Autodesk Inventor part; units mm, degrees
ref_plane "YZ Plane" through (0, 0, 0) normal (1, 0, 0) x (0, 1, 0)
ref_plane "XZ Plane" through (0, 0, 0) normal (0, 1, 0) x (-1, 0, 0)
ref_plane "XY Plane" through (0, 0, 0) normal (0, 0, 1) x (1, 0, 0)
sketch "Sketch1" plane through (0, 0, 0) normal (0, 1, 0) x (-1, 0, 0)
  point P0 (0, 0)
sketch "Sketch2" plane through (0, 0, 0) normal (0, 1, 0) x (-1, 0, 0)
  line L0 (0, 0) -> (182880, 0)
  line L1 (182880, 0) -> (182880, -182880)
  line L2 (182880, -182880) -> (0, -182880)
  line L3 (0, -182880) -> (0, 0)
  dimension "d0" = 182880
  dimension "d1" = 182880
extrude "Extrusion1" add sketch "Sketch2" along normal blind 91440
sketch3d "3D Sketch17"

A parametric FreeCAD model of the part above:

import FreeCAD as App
import Part
import Sketcher
Q = App.Units.Quantity


def add_polygon(sketch, points):
    """Adds a closed chain of lines whose ends are joined by coincident constraints."""
    first, n = sketch.GeometryCount, len(points)
    for a, b in zip(points, points[1:] + points[:1]):
        sketch.addGeometry(Part.LineSegment(App.Vector(*a, 0), App.Vector(*b, 0)), False)
    for i in range(n):
        sketch.addConstraint(Sketcher.Constraint("Coincident", first + i, 2, first + (i + 1) % n, 1))

doc = App.newDocument("Part")
body = doc.addObject("PartDesign::Body", "Body")

# Sketch on XZ plane
sketch1 = doc.addObject("Sketcher::SketchObject", "Sketch")
body.addObject(sketch1)
sketch1.AttachmentSupport = (doc.XZ_Plane, [""])
sketch1.MapMode = "FlatFace"
add_polygon(sketch1, [(-182880, 0), (0, 0), (0, -182880), (-182880, -182880)])  # lines 0-3
sketch1.addConstraint(Sketcher.Constraint("Horizontal", 0))
sketch1.addConstraint(Sketcher.Constraint("Vertical", 1))
sketch1.addConstraint(Sketcher.Constraint("Horizontal", 2))
sketch1.addConstraint(Sketcher.Constraint("Vertical", 3))
sketch1.addConstraint(Sketcher.Constraint("Coincident", 0, 2, -1, 1))
sketch1.addConstraint(Sketcher.Constraint("Equal", 2, 1))
sketch1.addConstraint(Sketcher.Constraint("DistanceX", 0, 1, 0, 2, Q("7200 in")))
pad1 = doc.addObject("PartDesign::Pad", "Pad")
body.addObject(pad1)
pad1.Profile = sketch1
pad1.Length = Q("3600 in")
pad1.Reversed = True

doc.recompute()
